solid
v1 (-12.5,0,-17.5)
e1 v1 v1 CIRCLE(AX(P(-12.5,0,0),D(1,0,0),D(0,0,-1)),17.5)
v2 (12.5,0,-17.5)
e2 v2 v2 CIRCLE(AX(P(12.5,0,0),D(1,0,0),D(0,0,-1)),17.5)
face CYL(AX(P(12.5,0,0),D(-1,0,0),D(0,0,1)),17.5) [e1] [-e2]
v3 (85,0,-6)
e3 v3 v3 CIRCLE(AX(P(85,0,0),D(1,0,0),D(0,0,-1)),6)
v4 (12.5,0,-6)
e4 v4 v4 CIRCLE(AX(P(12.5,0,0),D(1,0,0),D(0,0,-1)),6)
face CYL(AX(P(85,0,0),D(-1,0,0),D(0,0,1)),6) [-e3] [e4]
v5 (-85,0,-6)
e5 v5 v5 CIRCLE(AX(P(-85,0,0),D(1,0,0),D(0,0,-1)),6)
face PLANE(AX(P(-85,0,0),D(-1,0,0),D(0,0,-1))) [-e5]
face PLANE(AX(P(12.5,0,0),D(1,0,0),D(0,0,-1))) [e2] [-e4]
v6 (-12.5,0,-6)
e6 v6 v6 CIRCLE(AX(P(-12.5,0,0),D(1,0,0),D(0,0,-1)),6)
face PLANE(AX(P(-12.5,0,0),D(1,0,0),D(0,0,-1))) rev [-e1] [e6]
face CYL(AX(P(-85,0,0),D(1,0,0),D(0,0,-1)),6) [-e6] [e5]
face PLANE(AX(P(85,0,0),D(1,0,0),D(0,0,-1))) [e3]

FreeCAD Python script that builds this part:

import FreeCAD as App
import Part
import Sketcher

V = App.Vector
Q = App.Units.Quantity

doc = App.newDocument("Part")
body = doc.addObject("PartDesign::Body", "Body")

sketch1 = body.newObject("Sketcher::SketchObject", "Sketch")
sketch1.AttachmentSupport = (doc.getObject("YZ_Plane"), [""])
sketch1.MapMode = "FlatFace"
sketch1.addGeometry(Part.Circle(V(0, 0, 0), V(0, 0, 1), 17.5), False)
sketch1.addConstraint(Sketcher.Constraint("Coincident", 0, 3, -1, 1))
sketch1.addConstraint(Sketcher.Constraint("Diameter", 0, Q("35 mm")))
pad1 = body.newObject("PartDesign::Pad", "Pad")
pad1.Profile = sketch1
pad1.Length = 25
pad1.Midplane = True

sketch2 = body.newObject("Sketcher::SketchObject", "Sketch001")
sketch2.AttachmentSupport = (doc.getObject("YZ_Plane"), [""])
sketch2.MapMode = "FlatFace"
sketch2.AttachmentOffset = App.Placement(V(0, 0, 12.5), App.Rotation())
sketch2.addGeometry(Part.Circle(V(0, 0, 0), V(0, 0, 1), 6), False)
sketch2.addConstraint(Sketcher.Constraint("Coincident", 0, 3, -1, 1))
sketch2.addConstraint(Sketcher.Constraint("Diameter", 0, Q("12 mm")))
pad2 = body.newObject("PartDesign::Pad", "Pad001")
pad2.Profile = sketch2
pad2.Length = 72.5
doc.recompute()

mirrored = body.newObject("PartDesign::Mirrored", "Mirrored")
mirrored.Originals = [pad2]
mirrored.MirrorPlane = (doc.getObject("YZ_Plane"), [""])
body.Tip = mirrored

doc.recompute()
